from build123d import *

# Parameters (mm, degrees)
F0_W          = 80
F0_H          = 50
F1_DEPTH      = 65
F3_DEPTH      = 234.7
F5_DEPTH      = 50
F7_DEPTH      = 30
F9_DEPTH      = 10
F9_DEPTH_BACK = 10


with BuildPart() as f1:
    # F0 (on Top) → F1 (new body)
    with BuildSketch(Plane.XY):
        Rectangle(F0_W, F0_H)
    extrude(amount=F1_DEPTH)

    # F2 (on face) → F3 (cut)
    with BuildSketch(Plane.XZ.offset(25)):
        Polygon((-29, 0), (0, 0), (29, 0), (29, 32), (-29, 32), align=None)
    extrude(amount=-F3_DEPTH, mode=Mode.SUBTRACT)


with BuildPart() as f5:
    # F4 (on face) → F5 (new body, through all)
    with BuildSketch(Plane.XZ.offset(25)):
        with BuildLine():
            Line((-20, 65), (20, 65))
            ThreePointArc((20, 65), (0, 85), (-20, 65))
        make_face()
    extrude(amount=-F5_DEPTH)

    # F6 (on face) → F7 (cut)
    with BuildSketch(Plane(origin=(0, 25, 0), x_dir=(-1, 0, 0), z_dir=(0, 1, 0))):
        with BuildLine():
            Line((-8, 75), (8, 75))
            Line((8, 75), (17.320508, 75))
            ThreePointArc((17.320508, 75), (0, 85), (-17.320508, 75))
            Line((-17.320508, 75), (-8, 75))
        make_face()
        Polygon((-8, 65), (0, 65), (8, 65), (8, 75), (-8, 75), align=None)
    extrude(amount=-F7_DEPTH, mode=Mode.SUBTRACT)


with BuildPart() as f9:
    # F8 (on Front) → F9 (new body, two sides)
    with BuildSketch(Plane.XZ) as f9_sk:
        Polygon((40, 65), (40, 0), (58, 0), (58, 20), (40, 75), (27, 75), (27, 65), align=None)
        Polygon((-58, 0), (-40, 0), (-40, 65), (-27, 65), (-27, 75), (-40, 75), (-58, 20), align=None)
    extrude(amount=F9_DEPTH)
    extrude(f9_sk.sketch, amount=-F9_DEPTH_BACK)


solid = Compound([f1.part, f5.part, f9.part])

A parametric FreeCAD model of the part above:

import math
import FreeCAD as App
import Part
import Sketcher
from FreeCAD import Vector


def add_polygon(sketch, points):
    """Adds a closed chain of lines whose ends are joined by coincident constraints."""
    first, n = sketch.GeometryCount, len(points)
    for a, b in zip(points, points[1:] + points[:1]):
        sketch.addGeometry(Part.LineSegment(App.Vector(*a, 0), App.Vector(*b, 0)), False)
    for i in range(n):
        sketch.addConstraint(Sketcher.Constraint("Coincident", first + i, 2, first + (i + 1) % n, 1))

doc = App.newDocument("Part")
body = doc.addObject("PartDesign::Body", "Body")

# Sketch on XY plane
sketch1 = doc.addObject("Sketcher::SketchObject", "Sketch")
body.addObject(sketch1)
sketch1.AttachmentSupport = (doc.XY_Plane, [""])
sketch1.MapMode = "FlatFace"
add_polygon(sketch1, [(-40, 25), (-40, -25), (40, -25), (40, 25)])  # lines 0-3
sketch1.addConstraint(Sketcher.Constraint("Vertical", 0))
sketch1.addConstraint(Sketcher.Constraint("Horizontal", 1))
sketch1.addConstraint(Sketcher.Constraint("Vertical", 2))
sketch1.addConstraint(Sketcher.Constraint("Horizontal", 3))
sketch1.addConstraint(Sketcher.Constraint("Symmetric", 0, 2, 2, 2, -1, 1))
sketch1.addConstraint(Sketcher.Constraint("DistanceX", 1, 1, 1, 2, 80.0))
sketch1.addConstraint(Sketcher.Constraint("DistanceY", 0, 2, 0, 1, 50.0))
pad1 = doc.addObject("PartDesign::Pad", "Pad")
body.addObject(pad1)
pad1.Profile = sketch1
pad1.Length = 65

# Sketch on XZ plane
sketch2 = doc.addObject("Sketcher::SketchObject", "Sketch001")
body.addObject(sketch2)
sketch2.AttachmentSupport = (doc.XZ_Plane, [""])
sketch2.MapMode = "FlatFace"
sketch2.AttachmentOffset = App.Placement(Vector(0, 0, 25), App.Rotation())
add_polygon(sketch2, [(-29, 0), (29, 0), (29, 32), (-29, 32)])  # lines 0-3
sketch2.addConstraint(Sketcher.Constraint("Horizontal", 0))
sketch2.addConstraint(Sketcher.Constraint("Vertical", 1))
sketch2.addConstraint(Sketcher.Constraint("Horizontal", 2))
sketch2.addConstraint(Sketcher.Constraint("Vertical", 3))
sketch2.addConstraint(Sketcher.Constraint("Symmetric", 0, 2, 3, 2, -1, 1))
sketch2.addConstraint(Sketcher.Constraint("DistanceX", 0, 1, 0, 2, 58.0))
sketch2.addConstraint(Sketcher.Constraint("DistanceY", 1, 1, 1, 2, 32.0))
pocket1 = doc.addObject("PartDesign::Pocket", "Pocket")
body.addObject(pocket1)
pocket1.Profile = sketch2
pocket1.Length = 234.7
body2 = doc.addObject("PartDesign::Body", "Body001")

# Sketch on XZ plane
sketch3 = doc.addObject("Sketcher::SketchObject", "Sketch002")
body2.addObject(sketch3)
sketch3.AttachmentSupport = (doc.getObject("XZ_Plane001"), [""])
sketch3.MapMode = "FlatFace"
sketch3.AttachmentOffset = App.Placement(Vector(0, 0, 25), App.Rotation())
sketch3.addGeometry(Part.LineSegment(Vector(-20, 65, 0), Vector(20, 65, 0)), False)
sketch3.addGeometry(Part.ArcOfCircle(Part.Circle(Vector(0, 65, 0), Vector(0, 0, 1), 20), math.radians(0), math.radians(180)), False)
sketch3.addConstraint(Sketcher.Constraint("Coincident", 0, 1, 1, 2))
sketch3.addConstraint(Sketcher.Constraint("Coincident", 1, 1, 0, 2))
sketch3.addConstraint(Sketcher.Constraint("Horizontal", 0))
sketch3.addConstraint(Sketcher.Constraint("PointOnObject", 1, 3, -2))
sketch3.addConstraint(Sketcher.Constraint("Horizontal", 1, 3, 0, 1))
sketch3.addConstraint(Sketcher.Constraint("Radius", 1, 20.0))
sketch3.addConstraint(Sketcher.Constraint("DistanceY", -1, 1, 1, 3, 65.0))
pad2 = doc.addObject("PartDesign::Pad", "Pad001")
body2.addObject(pad2)
pad2.Profile = sketch3
pad2.Length = 50
pad2.Reversed = True

# Sketch on XZ plane
sketch4 = doc.addObject("Sketcher::SketchObject", "Sketch003")
body2.addObject(sketch4)
sketch4.AttachmentSupport = (doc.getObject("XZ_Plane001"), [""])
sketch4.MapMode = "FlatFace"
sketch4.AttachmentOffset = App.Placement(Vector(0, 0, -25), App.Rotation())
sketch4.addGeometry(Part.ArcOfCircle(Part.Circle(Vector(0, 65, 0), Vector(0, 0, 1), 20), math.radians(30), math.radians(150)), False)
sketch4.addGeometry(Part.LineSegment(Vector(17, 75, 0), Vector(8, 75, 0)), False)
sketch4.addGeometry(Part.LineSegment(Vector(8, 75, 0), Vector(8, 65, 0)), False)
sketch4.addGeometry(Part.LineSegment(Vector(8, 65, 0), Vector(-8, 65, 0)), False)
sketch4.addGeometry(Part.LineSegment(Vector(-8, 65, 0), Vector(-8, 75, 0)), False)
sketch4.addGeometry(Part.LineSegment(Vector(-8, 75, 0), Vector(-17, 75, 0)), False)
sketch4.addConstraint(Sketcher.Constraint("Coincident", 0, 1, 1, 1))
sketch4.addConstraint(Sketcher.Constraint("Coincident", 1, 2, 2, 1))
sketch4.addConstraint(Sketcher.Constraint("Coincident", 2, 2, 3, 1))
sketch4.addConstraint(Sketcher.Constraint("Coincident", 3, 2, 4, 1))
sketch4.addConstraint(Sketcher.Constraint("Coincident", 4, 2, 5, 1))
sketch4.addConstraint(Sketcher.Constraint("Coincident", 5, 2, 0, 2))
sketch4.addConstraint(Sketcher.Constraint("Horizontal", 1))
sketch4.addConstraint(Sketcher.Constraint("Vertical", 2))
sketch4.addConstraint(Sketcher.Constraint("Horizontal", 3))
sketch4.addConstraint(Sketcher.Constraint("Vertical", 4))
sketch4.addConstraint(Sketcher.Constraint("Horizontal", 5))
sketch4.addConstraint(Sketcher.Constraint("Symmetric", 1, 2, 4, 2, -2))
sketch4.addConstraint(Sketcher.Constraint("PointOnObject", 0, 3, -2))
sketch4.addConstraint(Sketcher.Constraint("Horizontal", 0, 3, 2, 2))
sketch4.addConstraint(Sketcher.Constraint("Radius", 0, 20.0))
sketch4.addConstraint(Sketcher.Constraint("DistanceX", 3, 2, 3, 1, 16.0))
sketch4.addConstraint(Sketcher.Constraint("DistanceY", 2, 2, 2, 1, 10.0))
sketch4.addConstraint(Sketcher.Constraint("DistanceY", -1, 1, 0, 3, 65.0))
pocket2 = doc.addObject("PartDesign::Pocket", "Pocket001")
body2.addObject(pocket2)
pocket2.Profile = sketch4
pocket2.Length = 30
pocket2.Reversed = True
body3 = doc.addObject("PartDesign::Body", "Body002")
body3.AllowCompound = True

# Sketch on XZ plane
sketch5 = doc.addObject("Sketcher::SketchObject", "Sketch004")
body3.addObject(sketch5)
sketch5.AttachmentSupport = (doc.getObject("XZ_Plane002"), [""])
sketch5.MapMode = "FlatFace"
add_polygon(sketch5, [(40, 65), (40, 0), (58, 0), (58, 20), (40, 75), (27, 75), (27, 65)])  # lines 0-6
add_polygon(sketch5, [(-58, 0), (-40, 0), (-40, 65), (-27, 65), (-27, 75), (-40, 75), (-58, 20)])  # lines 7-13
sketch5.addConstraint(Sketcher.Constraint("Vertical", 0))
sketch5.addConstraint(Sketcher.Constraint("Horizontal", 1))
sketch5.addConstraint(Sketcher.Constraint("Vertical", 2))
sketch5.addConstraint(Sketcher.Constraint("Horizontal", 4))
sketch5.addConstraint(Sketcher.Constraint("Vertical", 5))
sketch5.addConstraint(Sketcher.Constraint("Horizontal", 6))
sketch5.addConstraint(Sketcher.Constraint("Horizontal", 7))
sketch5.addConstraint(Sketcher.Constraint("Vertical", 8))
sketch5.addConstraint(Sketcher.Constraint("Horizontal", 9))
sketch5.addConstraint(Sketcher.Constraint("Vertical", 10))
sketch5.addConstraint(Sketcher.Constraint("Horizontal", 11))
sketch5.addConstraint(Sketcher.Constraint("Vertical", 13))
sketch5.addConstraint(Sketcher.Constraint("Symmetric", 0, 2, 7, 2, -1, 1))
sketch5.addConstraint(Sketcher.Constraint("Symmetric", 5, 2, 9, 2, -2))
sketch5.addConstraint(Sketcher.Constraint("Symmetric", 3, 2, 11, 2, -2))
sketch5.addConstraint(Sketcher.Constraint("Symmetric", 2, 2, 12, 2, -2))
sketch5.addConstraint(Sketcher.Constraint("PointOnObject", 0, 2, -1))
sketch5.addConstraint(Sketcher.Constraint("Vertical", 0, 2, 3, 2))
sketch5.addConstraint(Sketcher.Constraint("DistanceX", 1, 1, 1, 2, 18.0))
sketch5.addConstraint(Sketcher.Constraint("DistanceX", 4, 2, 4, 1, 13.0))
sketch5.addConstraint(Sketcher.Constraint("DistanceY", 0, 2, 0, 1, 65.0))
sketch5.addConstraint(Sketcher.Constraint("DistanceY", 2, 1, 2, 2, 20.0))
sketch5.addConstraint(Sketcher.Constraint("DistanceY", 5, 2, 5, 1, 10.0))
sketch5.addConstraint(Sketcher.Constraint("DistanceX", -1, 1, 0, 2, 40.0))
pad3 = doc.addObject("PartDesign::Pad", "Pad002")
body3.addObject(pad3)
pad3.Profile = sketch5
pad3.Type = "TwoLengths"
pad3.Length = 10
pad3.Length2 = 10

doc.recompute()
